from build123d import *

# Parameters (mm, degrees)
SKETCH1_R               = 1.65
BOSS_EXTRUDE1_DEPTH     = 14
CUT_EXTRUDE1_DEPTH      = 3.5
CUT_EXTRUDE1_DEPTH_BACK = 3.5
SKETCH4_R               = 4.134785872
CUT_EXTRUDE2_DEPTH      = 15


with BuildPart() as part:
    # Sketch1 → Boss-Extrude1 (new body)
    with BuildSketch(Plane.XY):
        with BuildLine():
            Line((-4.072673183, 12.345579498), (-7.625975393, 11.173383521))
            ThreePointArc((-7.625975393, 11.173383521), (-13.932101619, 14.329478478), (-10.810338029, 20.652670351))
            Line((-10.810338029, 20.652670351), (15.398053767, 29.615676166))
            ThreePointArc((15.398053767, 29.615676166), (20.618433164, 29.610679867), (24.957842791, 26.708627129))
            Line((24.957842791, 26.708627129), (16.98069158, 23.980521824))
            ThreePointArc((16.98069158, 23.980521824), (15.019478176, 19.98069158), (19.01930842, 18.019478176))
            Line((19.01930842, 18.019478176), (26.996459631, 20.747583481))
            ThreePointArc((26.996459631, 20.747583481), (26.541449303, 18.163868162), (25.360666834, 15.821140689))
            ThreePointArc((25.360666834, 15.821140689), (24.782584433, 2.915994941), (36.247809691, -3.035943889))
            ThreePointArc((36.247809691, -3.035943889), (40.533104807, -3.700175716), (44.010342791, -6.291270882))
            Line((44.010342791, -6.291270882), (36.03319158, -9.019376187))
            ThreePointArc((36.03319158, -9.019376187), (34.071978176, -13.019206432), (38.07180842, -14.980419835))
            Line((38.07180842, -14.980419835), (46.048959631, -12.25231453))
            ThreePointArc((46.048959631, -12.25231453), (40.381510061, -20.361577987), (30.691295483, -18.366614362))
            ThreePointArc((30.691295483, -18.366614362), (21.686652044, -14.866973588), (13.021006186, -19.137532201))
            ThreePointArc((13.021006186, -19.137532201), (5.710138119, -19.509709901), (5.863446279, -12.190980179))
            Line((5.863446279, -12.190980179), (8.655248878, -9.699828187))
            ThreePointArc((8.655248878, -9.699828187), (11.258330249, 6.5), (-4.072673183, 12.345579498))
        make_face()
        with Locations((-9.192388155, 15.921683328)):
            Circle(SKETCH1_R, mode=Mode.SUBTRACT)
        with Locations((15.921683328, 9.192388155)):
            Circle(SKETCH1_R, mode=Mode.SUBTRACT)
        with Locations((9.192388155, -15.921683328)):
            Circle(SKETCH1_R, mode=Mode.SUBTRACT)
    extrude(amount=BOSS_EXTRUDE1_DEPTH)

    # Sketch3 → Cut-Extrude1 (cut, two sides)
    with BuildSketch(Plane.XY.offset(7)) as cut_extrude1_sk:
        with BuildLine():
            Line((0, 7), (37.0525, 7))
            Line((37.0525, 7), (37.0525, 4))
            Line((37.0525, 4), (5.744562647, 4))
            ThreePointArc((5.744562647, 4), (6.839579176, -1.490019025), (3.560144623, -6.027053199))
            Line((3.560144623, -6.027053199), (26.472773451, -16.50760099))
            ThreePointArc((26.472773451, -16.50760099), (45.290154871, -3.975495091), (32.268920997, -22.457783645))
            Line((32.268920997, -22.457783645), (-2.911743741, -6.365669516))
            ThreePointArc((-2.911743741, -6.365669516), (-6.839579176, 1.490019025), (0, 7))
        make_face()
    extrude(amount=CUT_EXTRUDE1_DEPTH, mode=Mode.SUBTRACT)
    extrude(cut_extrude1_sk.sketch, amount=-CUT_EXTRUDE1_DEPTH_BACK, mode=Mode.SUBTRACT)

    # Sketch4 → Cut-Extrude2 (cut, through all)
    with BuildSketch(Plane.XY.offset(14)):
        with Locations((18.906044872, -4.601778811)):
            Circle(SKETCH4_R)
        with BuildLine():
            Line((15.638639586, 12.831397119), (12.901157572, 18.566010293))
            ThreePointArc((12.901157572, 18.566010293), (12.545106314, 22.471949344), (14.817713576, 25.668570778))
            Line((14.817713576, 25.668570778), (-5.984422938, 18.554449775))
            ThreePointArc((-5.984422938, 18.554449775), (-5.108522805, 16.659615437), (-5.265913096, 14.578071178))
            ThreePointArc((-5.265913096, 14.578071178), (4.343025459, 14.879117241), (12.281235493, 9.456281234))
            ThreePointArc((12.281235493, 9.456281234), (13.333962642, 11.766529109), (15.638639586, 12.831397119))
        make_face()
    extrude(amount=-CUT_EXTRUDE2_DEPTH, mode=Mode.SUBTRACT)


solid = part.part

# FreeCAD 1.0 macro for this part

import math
import FreeCAD as App
import Part
import Sketcher
from FreeCAD import Vector
Q = App.Units.Quantity

doc = App.newDocument("Part")
body = doc.addObject("PartDesign::Body", "Body")

sketch1 = body.newObject("Sketcher::SketchObject", "Sketch")
sketch1.AttachmentSupport = (doc.getObject("XY_Plane"), [""])
sketch1.MapMode = "FlatFace"
sketch1.addGeometry([
    Part.LineSegment(Vector(-7.625975, 11.173384, 0), Vector(-4.072673, 12.345579, 0)),
    Part.ArcOfCircle(Part.Circle(Vector(0, 0, 0), Vector(0, 0, 1), 13), math.radians(-48.257164), math.radians(108.257164)),
    Part.LineSegment(Vector(8.655249, -9.699828, 0), Vector(5.863446, -12.19098, 0)),
    Part.ArcOfCircle(Part.Circle(Vector(9.192388, -15.921683, 0), Vector(0, 0, 1), 5), math.radians(131.742836), math.radians(319.97141)),
    Part.ArcOfCircle(Part.Circle(Vector(22.209689, -26.855569, 0), Vector(0, 0, 1), 12), math.radians(45.024812), math.radians(139.97141)),
    Part.ArcOfCircle(Part.Circle(Vector(37.0525, -11.999898, 0), Vector(0, 0, 1), 9), math.radians(-134.975188), math.radians(-1.607144)),
    Part.LineSegment(Vector(46.04896, -12.252315, 0), Vector(38.071808, -14.98042, 0)),
    Part.ArcOfCircle(Part.Circle(Vector(37.0525, -11.999898, 0), Vector(0, 0, 1), 3.15), math.radians(108.880171), math.radians(288.880171)),
    Part.LineSegment(Vector(36.033192, -9.019376, 0), Vector(44.010343, -6.291271, 0)),
    Part.ArcOfCircle(Part.Circle(Vector(37.0525, -11.999898, 0), Vector(0, 0, 1), 9), math.radians(39.367486), math.radians(95.129668)),
    Part.ArcOfCircle(Part.Circle(Vector(35.174889, 8.915995, 0), Vector(0, 0, 1), 12), math.radians(144.870332), math.radians(275.129668)),
    Part.ArcOfCircle(Part.Circle(Vector(18, 21, 0), Vector(0, 0, 1), 9), math.radians(-35.129668), math.radians(-1.607144)),
    Part.LineSegment(Vector(26.99646, 20.747583, 0), Vector(19.019308, 18.019478, 0)),
    Part.ArcOfCircle(Part.Circle(Vector(18, 21, 0), Vector(0, 0, 1), 3.15), math.radians(108.880171), math.radians(288.880171)),
    Part.LineSegment(Vector(16.980692, 23.980522, 0), Vector(24.957843, 26.708627, 0)),
    Part.ArcOfCircle(Part.Circle(Vector(18, 21, 0), Vector(0, 0, 1), 9), math.radians(39.367486), math.radians(106.804389)),
    Part.LineSegment(Vector(15.398054, 29.615676, 0), Vector(-10.810338, 20.65267, 0)),
    Part.ArcOfCircle(Part.Circle(Vector(-9.192388, 15.921683, 0), Vector(0, 0, 1), 5), math.radians(108.880171), math.radians(288.257164)),
    Part.Circle(Vector(9.192388, -15.921683, 0), Vector(0, 0, 1), 1.65),
    Part.Circle(Vector(15.921683, 9.192388, 0), Vector(0, 0, 1), 1.65),
    Part.Circle(Vector(-9.192388, 15.921683, 0), Vector(0, 0, 1), 1.65),
], False)
sketch1.addConstraint([
    Sketcher.Constraint("Tangent", 0, 2, 1, 2),
    Sketcher.Constraint("Tangent", 1, 1, 2, 1),
    Sketcher.Constraint("Tangent", 2, 2, 3, 1),
    Sketcher.Constraint("Tangent", 3, 2, 4, 2),
    Sketcher.Constraint("Tangent", 4, 1, 5, 1),
    Sketcher.Constraint("Coincident", 5, 2, 6, 1),
    Sketcher.Constraint("Tangent", 6, 2, 7, 2),
    Sketcher.Constraint("Tangent", 7, 1, 8, 1),
    Sketcher.Constraint("Coincident", 8, 2, 9, 1),
    Sketcher.Constraint("Tangent", 9, 2, 10, 2),
    Sketcher.Constraint("Tangent", 10, 1, 11, 1),
    Sketcher.Constraint("Coincident", 11, 2, 12, 1),
    Sketcher.Constraint("Tangent", 12, 2, 13, 2),
    Sketcher.Constraint("Tangent", 13, 1, 14, 1),
    Sketcher.Constraint("Coincident", 14, 2, 15, 1),
    Sketcher.Constraint("Coincident", 15, 2, 16, 1),
    Sketcher.Constraint("Tangent", 16, 2, 17, 1),
    Sketcher.Constraint("Tangent", 17, 2, 0, 1),
    Sketcher.Constraint("Coincident", 1, 3, -1, 1),
    Sketcher.Constraint("Coincident", 7, 3, 5, 3),
    Sketcher.Constraint("Coincident", 9, 3, 5, 3),
    Sketcher.Constraint("Coincident", 13, 3, 11, 3),
    Sketcher.Constraint("Coincident", 15, 3, 11, 3),
    Sketcher.Constraint("Coincident", 18, 3, 3, 3),
    Sketcher.Constraint("Coincident", 20, 3, 17, 3),
    Sketcher.Constraint("Equal", 5, 9),
    Sketcher.Constraint("Equal", 4, 10),
    Sketcher.Constraint("Equal", 9, 11),
    Sketcher.Constraint("Equal", 7, 13),
    Sketcher.Constraint("Equal", 11, 15),
    Sketcher.Constraint("Equal", 3, 17),
    Sketcher.Constraint("Equal", 18, 19),
    Sketcher.Constraint("Equal", 19, 20),
    Sketcher.Constraint("Symmetric", 3, 3, 17, 3, -1, 1),
    Sketcher.Constraint("Parallel", 6, 8),
    Sketcher.Constraint("Parallel", 8, 12),
    Sketcher.Constraint("Parallel", 12, 14),
    Sketcher.Constraint("Parallel", 14, 16),
    Sketcher.Constraint("Radius", 1, 13.0),
    Sketcher.Constraint("Radius", 3, 5.0),
    Sketcher.Constraint("Radius", 4, 12.0),
    Sketcher.Constraint("Radius", 5, 9.0),
    Sketcher.Constraint("Diameter", 18, 3.3),
    Sketcher.Constraint("Radius", 7, 3.15),
    Sketcher.Constraint("DistanceX", -1, 1, 11, 3, 18.0),
    Sketcher.Constraint("DistanceY", -1, 1, 11, 3, 21.0),
    Sketcher.Constraint("DistanceX", -1, 1, 5, 3, 37.0525),
    Sketcher.Constraint("DistanceY", 5, 3, -1, 1, 11.999898),
    Sketcher.Constraint("DistanceX", 3, 3, 4, 3, 13.017301),
    Sketcher.Constraint("DistanceX", 3, 3, 10, 3, 25.982501),
    Sketcher.Constraint("Distance", 16, 27.698651),
    Sketcher.Constraint("DistanceY", -1, 1, 19, 3, 9.192388),
    Sketcher.Constraint("DistanceX", 20, 3, 19, 3, 25.114071),
])
pad1 = body.newObject("PartDesign::Pad", "Pad")
pad1.Profile = sketch1
pad1.Length = 14

sketch2 = body.newObject("Sketcher::SketchObject", "Sketch001")
sketch2.AttachmentSupport = (doc.getObject("XY_Plane"), [""])
sketch2.MapMode = "FlatFace"
sketch2.AttachmentOffset = App.Placement(Vector(0, 0, 7), App.Rotation())
sketch2.addGeometry([
    Part.LineSegment(Vector(37.0525, 7, 0), Vector(0, 7, 0)),
    Part.ArcOfCircle(Part.Circle(Vector(0, 0, 0), Vector(0, 0, 1), 7), math.radians(90), math.radians(245.419999)),
    Part.LineSegment(Vector(-2.911744, -6.36567, 0), Vector(32.268921, -22.457784, 0)),
    Part.ArcOfCircle(Part.Circle(Vector(37.0525, -11.999898, 0), Vector(0, 0, 1), 11.5), math.radians(-114.580001), math.radians(203.077394)),
    Part.LineSegment(Vector(26.472773, -16.507601, 0), Vector(3.560145, -6.027053, 0)),
    Part.ArcOfCircle(Part.Circle(Vector(0, 0, 0), Vector(0, 0, 1), 7), math.radians(-59.429905), math.radians(34.849905)),
    Part.LineSegment(Vector(5.744563, 4, 0), Vector(37.0525, 4, 0)),
    Part.LineSegment(Vector(37.0525, 4, 0), Vector(37.0525, 7, 0)),
], False)
sketch2.addConstraint([
    Sketcher.Constraint("Tangent", 0, 2, 1, 1),
    Sketcher.Constraint("Tangent", 1, 2, 2, 1),
    Sketcher.Constraint("Tangent", 2, 2, 3, 1),
    Sketcher.Constraint("Coincident", 3, 2, 4, 1),
    Sketcher.Constraint("Coincident", 4, 2, 5, 1),
    Sketcher.Constraint("Coincident", 5, 2, 6, 1),
    Sketcher.Constraint("Coincident", 6, 2, 7, 1),
    Sketcher.Constraint("Coincident", 7, 2, 0, 1),
    Sketcher.Constraint("Horizontal", 0),
    Sketcher.Constraint("Horizontal", 6),
    Sketcher.Constraint("Vertical", 7),
    Sketcher.Constraint("Coincident", 1, 3, -1, 1),
    Sketcher.Constraint("Coincident", 5, 3, -1, 1),
    Sketcher.Constraint("Equal", 1, 5),
    Sketcher.Constraint("Parallel", 2, 4),
    Sketcher.Constraint("Vertical", 3, 3, 6, 2),
    Sketcher.Constraint("Radius", 1, 7.0),
    Sketcher.Constraint("Radius", 3, 11.5),
    Sketcher.Constraint("DistanceY", 7, 1, 7, 2, 3.0),
    Sketcher.Constraint("Angle", 2, Q("-24.580001 deg")),
    Sketcher.Constraint("DistanceX", 0, 2, 0, 1, 37.0525),
    Sketcher.Constraint("DistanceY", 3, 2, -1, 1, 16.507601),
])
pocket1 = body.newObject("PartDesign::Pocket", "Pocket")
pocket1.Profile = sketch2
pocket1.Type = "TwoLengths"
pocket1.Length = 3.5
pocket1.Length2 = 3.5
pocket1.Reversed = True

sketch3 = body.newObject("Sketcher::SketchObject", "Sketch002")
sketch3.AttachmentSupport = (doc.getObject("XY_Plane"), [""])
sketch3.MapMode = "FlatFace"
sketch3.AttachmentOffset = App.Placement(Vector(0, 0, 14), App.Rotation())
sketch3.addGeometry([
    Part.Circle(Vector(18.906045, -4.601779, 0), Vector(0, 0, 1), 4.134786),
    Part.LineSegment(Vector(15.63864, 12.831397, 0), Vector(12.901158, 18.56601, 0)),
    Part.ArcOfCircle(Part.Circle(Vector(18, 21, 0), Vector(0, 0, 1), 5.65), math.radians(124.279923), math.radians(205.518)),
    Part.LineSegment(Vector(14.817714, 25.668571, 0), Vector(-5.984423, 18.55445, 0)),
    Part.ArcOfCircle(Part.Circle(Vector(-9.192388, 15.921683, 0), Vector(0, 0, 1), 4.15), math.radians(-18.890586), math.radians(39.375613)),
    Part.ArcOfCircle(Part.Circle(Vector(0, 0, 0), Vector(0, 0, 1), 15.5), math.radians(37.59548), math.radians(109.860811)),
    Part.ArcOfCircle(Part.Circle(Vector(15.921683, 9.192388, 0), Vector(0, 0, 1), 3.65), math.radians(94.447537), math.radians(175.853928)),
], False)
sketch3.addConstraint([
    Sketcher.Constraint("Tangent", 1, 2, 2, 2),
    Sketcher.Constraint("Coincident", 2, 1, 3, 1),
    Sketcher.Constraint("Coincident", 3, 2, 4, 2),
    Sketcher.Constraint("Coincident", 4, 1, 5, 2),
    Sketcher.Constraint("Coincident", 5, 1, 6, 2),
    Sketcher.Constraint("Coincident", 6, 1, 1, 1),
    Sketcher.Constraint("Coincident", 5, 3, -1, 1),
    Sketcher.Constraint("Radius", 5, 15.5),
    Sketcher.Constraint("Radius", 2, 5.65),
    Sketcher.Constraint("Radius", 4, 4.15),
    Sketcher.Constraint("Radius", 6, 3.65),
    Sketcher.Constraint("DistanceX", -1, 1, 2, 3, 18.0),
    Sketcher.Constraint("DistanceY", -1, 1, 2, 3, 21.0),
    Sketcher.Constraint("Diameter", 0, 8.269572),
    Sketcher.Constraint("DistanceX", 4, 3, 2, 1, 24.010102),
    Sketcher.Constraint("DistanceY", 0, 3, -1, 1, 4.601779),
    Sketcher.Constraint("DistanceX", 4, 3, -1, 1, 9.192388),
    Sketcher.Constraint("DistanceY", -1, 1, 6, 3, 9.192388),
    Sketcher.Constraint("DistanceY", -1, 1, 1, 2, 18.56601),
    Sketcher.Constraint("DistanceY", -1, 1, 3, 2, 18.55445),
    Sketcher.Constraint("DistanceY", -1, 1, 4, 1, 14.578071),
    Sketcher.Constraint("DistanceY", -1, 1, 5, 1, 9.456281),
    Sketcher.Constraint("DistanceX", 6, 3, 0, 3, 2.984362),
])
pocket2 = body.newObject("PartDesign::Pocket", "Pocket001")
pocket2.Profile = sketch3
pocket2.Type = "ThroughAll"

doc.recompute()
